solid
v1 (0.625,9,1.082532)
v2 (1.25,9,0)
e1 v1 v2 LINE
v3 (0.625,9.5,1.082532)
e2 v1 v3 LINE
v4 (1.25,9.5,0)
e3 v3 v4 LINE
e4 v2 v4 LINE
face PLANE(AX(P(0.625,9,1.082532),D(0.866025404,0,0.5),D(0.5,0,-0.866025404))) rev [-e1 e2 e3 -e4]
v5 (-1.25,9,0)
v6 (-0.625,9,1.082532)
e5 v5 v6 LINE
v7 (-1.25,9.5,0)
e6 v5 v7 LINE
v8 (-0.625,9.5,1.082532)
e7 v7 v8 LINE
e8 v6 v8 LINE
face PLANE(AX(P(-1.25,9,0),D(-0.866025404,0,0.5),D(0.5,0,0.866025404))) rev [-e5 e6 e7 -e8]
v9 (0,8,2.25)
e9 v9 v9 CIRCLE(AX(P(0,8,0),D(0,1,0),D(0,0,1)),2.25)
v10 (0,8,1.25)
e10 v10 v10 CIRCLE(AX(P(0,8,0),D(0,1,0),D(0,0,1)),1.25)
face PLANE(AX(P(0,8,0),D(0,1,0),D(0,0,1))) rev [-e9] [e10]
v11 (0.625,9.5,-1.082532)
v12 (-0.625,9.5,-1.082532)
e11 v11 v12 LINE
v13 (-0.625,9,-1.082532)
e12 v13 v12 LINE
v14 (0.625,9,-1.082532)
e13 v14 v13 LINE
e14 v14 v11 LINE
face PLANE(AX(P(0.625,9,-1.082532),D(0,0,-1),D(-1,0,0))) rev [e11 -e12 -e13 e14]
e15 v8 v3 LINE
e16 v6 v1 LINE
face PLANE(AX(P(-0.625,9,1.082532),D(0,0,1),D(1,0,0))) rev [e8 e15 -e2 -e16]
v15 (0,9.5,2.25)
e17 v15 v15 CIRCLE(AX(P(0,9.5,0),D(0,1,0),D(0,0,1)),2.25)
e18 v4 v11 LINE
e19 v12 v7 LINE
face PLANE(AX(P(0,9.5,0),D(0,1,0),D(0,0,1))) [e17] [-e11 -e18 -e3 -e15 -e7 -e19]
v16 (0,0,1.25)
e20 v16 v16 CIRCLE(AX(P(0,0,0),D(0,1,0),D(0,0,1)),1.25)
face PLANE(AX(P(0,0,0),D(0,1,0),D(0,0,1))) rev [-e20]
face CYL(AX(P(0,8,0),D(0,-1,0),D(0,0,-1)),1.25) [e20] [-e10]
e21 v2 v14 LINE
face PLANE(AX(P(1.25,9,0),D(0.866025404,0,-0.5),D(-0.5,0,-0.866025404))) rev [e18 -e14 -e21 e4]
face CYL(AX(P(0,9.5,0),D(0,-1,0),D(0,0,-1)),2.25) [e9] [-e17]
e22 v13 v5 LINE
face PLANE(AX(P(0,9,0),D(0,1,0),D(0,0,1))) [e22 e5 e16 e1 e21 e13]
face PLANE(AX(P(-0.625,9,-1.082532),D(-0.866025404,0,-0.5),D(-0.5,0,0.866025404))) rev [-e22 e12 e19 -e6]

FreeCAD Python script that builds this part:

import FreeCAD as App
import Part
import Sketcher

V = App.Vector
Q = App.Units.Quantity


def add_polygon(sketch, points):
    """Adds a closed chain of lines whose ends are joined by coincident constraints."""
    first, n = sketch.GeometryCount, len(points)
    for a, b in zip(points, points[1:] + points[:1]):
        sketch.addGeometry(Part.LineSegment(App.Vector(*a, 0), App.Vector(*b, 0)), False)
    for i in range(n):
        sketch.addConstraint(Sketcher.Constraint("Coincident", first + i, 2, first + (i + 1) % n, 1))

doc = App.newDocument("Part")
body = doc.addObject("PartDesign::Body", "Body")

sketch1 = doc.addObject("Sketcher::SketchObject", "Sketch")
body.addObject(sketch1)
sketch1.AttachmentSupport = (doc.XZ_Plane, [""])
sketch1.MapMode = "FlatFace"
sketch1.addGeometry(Part.Circle(V(0, 0, 0), V(0, 0, 1), 1.25), False)
sketch1.addConstraint([
    Sketcher.Constraint("Coincident", 0, 3, -1, 1),
    Sketcher.Constraint("Diameter", 0, Q("2.5 mm")),
])
pad1 = doc.addObject("PartDesign::Pad", "Pad")
body.addObject(pad1)
pad1.Profile = sketch1
pad1.Length = 8
pad1.Reversed = True

sketch2 = doc.addObject("Sketcher::SketchObject", "Sketch001")
body.addObject(sketch2)
sketch2.AttachmentSupport = (doc.XZ_Plane, [""])
sketch2.MapMode = "FlatFace"
sketch2.AttachmentOffset = App.Placement(V(0, 0, -8), App.Rotation())
sketch2.addGeometry(Part.Circle(V(0, 0, 0), V(0, 0, 1), 2.25), False)
sketch2.addConstraint([
    Sketcher.Constraint("Coincident", 0, 3, -1, 1),
    Sketcher.Constraint("Diameter", 0, Q("4.5 mm")),
])
pad2 = doc.addObject("PartDesign::Pad", "Pad001")
body.addObject(pad2)
pad2.Profile = sketch2
pad2.Length = 1.5
pad2.Reversed = True

sketch3 = doc.addObject("Sketcher::SketchObject", "Sketch002")
body.addObject(sketch3)
sketch3.AttachmentSupport = (doc.XZ_Plane, [""])
sketch3.MapMode = "FlatFace"
sketch3.AttachmentOffset = App.Placement(V(0, 0, -9.5), App.Rotation())
add_polygon(sketch3, [(1.25, 0), (0.625, -1.082532), (-0.625, -1.082532), (-1.25, 0), (-0.625, 1.082532), (0.625, 1.082532)])
sketch3.addConstraint([
    Sketcher.Constraint("Horizontal", 1),
    Sketcher.Constraint("Horizontal", 4),
    Sketcher.Constraint("Symmetric", 0, 2, 3, 2, -1, 1),
    Sketcher.Constraint("Symmetric", 2, 2, 5, 2, -1, 1),
    Sketcher.Constraint("PointOnObject", 2, 2, -1),
    Sketcher.Constraint("Parallel", 2, 5),
    Sketcher.Constraint("Vertical", 1, 2, 3, 2),
    Sketcher.Constraint("Angle", 0, Q("-120 deg")),
    Sketcher.Constraint("DistanceX", 1, 2, 1, 1, Q("1.25 mm")),
    Sketcher.Constraint("DistanceX", 2, 2, 5, 2, Q("2.5 mm")),
])
pocket1 = doc.addObject("PartDesign::Pocket", "Pocket")
body.addObject(pocket1)
pocket1.Profile = sketch3
pocket1.Length = 0.5
pocket1.Reversed = True

doc.recompute()
